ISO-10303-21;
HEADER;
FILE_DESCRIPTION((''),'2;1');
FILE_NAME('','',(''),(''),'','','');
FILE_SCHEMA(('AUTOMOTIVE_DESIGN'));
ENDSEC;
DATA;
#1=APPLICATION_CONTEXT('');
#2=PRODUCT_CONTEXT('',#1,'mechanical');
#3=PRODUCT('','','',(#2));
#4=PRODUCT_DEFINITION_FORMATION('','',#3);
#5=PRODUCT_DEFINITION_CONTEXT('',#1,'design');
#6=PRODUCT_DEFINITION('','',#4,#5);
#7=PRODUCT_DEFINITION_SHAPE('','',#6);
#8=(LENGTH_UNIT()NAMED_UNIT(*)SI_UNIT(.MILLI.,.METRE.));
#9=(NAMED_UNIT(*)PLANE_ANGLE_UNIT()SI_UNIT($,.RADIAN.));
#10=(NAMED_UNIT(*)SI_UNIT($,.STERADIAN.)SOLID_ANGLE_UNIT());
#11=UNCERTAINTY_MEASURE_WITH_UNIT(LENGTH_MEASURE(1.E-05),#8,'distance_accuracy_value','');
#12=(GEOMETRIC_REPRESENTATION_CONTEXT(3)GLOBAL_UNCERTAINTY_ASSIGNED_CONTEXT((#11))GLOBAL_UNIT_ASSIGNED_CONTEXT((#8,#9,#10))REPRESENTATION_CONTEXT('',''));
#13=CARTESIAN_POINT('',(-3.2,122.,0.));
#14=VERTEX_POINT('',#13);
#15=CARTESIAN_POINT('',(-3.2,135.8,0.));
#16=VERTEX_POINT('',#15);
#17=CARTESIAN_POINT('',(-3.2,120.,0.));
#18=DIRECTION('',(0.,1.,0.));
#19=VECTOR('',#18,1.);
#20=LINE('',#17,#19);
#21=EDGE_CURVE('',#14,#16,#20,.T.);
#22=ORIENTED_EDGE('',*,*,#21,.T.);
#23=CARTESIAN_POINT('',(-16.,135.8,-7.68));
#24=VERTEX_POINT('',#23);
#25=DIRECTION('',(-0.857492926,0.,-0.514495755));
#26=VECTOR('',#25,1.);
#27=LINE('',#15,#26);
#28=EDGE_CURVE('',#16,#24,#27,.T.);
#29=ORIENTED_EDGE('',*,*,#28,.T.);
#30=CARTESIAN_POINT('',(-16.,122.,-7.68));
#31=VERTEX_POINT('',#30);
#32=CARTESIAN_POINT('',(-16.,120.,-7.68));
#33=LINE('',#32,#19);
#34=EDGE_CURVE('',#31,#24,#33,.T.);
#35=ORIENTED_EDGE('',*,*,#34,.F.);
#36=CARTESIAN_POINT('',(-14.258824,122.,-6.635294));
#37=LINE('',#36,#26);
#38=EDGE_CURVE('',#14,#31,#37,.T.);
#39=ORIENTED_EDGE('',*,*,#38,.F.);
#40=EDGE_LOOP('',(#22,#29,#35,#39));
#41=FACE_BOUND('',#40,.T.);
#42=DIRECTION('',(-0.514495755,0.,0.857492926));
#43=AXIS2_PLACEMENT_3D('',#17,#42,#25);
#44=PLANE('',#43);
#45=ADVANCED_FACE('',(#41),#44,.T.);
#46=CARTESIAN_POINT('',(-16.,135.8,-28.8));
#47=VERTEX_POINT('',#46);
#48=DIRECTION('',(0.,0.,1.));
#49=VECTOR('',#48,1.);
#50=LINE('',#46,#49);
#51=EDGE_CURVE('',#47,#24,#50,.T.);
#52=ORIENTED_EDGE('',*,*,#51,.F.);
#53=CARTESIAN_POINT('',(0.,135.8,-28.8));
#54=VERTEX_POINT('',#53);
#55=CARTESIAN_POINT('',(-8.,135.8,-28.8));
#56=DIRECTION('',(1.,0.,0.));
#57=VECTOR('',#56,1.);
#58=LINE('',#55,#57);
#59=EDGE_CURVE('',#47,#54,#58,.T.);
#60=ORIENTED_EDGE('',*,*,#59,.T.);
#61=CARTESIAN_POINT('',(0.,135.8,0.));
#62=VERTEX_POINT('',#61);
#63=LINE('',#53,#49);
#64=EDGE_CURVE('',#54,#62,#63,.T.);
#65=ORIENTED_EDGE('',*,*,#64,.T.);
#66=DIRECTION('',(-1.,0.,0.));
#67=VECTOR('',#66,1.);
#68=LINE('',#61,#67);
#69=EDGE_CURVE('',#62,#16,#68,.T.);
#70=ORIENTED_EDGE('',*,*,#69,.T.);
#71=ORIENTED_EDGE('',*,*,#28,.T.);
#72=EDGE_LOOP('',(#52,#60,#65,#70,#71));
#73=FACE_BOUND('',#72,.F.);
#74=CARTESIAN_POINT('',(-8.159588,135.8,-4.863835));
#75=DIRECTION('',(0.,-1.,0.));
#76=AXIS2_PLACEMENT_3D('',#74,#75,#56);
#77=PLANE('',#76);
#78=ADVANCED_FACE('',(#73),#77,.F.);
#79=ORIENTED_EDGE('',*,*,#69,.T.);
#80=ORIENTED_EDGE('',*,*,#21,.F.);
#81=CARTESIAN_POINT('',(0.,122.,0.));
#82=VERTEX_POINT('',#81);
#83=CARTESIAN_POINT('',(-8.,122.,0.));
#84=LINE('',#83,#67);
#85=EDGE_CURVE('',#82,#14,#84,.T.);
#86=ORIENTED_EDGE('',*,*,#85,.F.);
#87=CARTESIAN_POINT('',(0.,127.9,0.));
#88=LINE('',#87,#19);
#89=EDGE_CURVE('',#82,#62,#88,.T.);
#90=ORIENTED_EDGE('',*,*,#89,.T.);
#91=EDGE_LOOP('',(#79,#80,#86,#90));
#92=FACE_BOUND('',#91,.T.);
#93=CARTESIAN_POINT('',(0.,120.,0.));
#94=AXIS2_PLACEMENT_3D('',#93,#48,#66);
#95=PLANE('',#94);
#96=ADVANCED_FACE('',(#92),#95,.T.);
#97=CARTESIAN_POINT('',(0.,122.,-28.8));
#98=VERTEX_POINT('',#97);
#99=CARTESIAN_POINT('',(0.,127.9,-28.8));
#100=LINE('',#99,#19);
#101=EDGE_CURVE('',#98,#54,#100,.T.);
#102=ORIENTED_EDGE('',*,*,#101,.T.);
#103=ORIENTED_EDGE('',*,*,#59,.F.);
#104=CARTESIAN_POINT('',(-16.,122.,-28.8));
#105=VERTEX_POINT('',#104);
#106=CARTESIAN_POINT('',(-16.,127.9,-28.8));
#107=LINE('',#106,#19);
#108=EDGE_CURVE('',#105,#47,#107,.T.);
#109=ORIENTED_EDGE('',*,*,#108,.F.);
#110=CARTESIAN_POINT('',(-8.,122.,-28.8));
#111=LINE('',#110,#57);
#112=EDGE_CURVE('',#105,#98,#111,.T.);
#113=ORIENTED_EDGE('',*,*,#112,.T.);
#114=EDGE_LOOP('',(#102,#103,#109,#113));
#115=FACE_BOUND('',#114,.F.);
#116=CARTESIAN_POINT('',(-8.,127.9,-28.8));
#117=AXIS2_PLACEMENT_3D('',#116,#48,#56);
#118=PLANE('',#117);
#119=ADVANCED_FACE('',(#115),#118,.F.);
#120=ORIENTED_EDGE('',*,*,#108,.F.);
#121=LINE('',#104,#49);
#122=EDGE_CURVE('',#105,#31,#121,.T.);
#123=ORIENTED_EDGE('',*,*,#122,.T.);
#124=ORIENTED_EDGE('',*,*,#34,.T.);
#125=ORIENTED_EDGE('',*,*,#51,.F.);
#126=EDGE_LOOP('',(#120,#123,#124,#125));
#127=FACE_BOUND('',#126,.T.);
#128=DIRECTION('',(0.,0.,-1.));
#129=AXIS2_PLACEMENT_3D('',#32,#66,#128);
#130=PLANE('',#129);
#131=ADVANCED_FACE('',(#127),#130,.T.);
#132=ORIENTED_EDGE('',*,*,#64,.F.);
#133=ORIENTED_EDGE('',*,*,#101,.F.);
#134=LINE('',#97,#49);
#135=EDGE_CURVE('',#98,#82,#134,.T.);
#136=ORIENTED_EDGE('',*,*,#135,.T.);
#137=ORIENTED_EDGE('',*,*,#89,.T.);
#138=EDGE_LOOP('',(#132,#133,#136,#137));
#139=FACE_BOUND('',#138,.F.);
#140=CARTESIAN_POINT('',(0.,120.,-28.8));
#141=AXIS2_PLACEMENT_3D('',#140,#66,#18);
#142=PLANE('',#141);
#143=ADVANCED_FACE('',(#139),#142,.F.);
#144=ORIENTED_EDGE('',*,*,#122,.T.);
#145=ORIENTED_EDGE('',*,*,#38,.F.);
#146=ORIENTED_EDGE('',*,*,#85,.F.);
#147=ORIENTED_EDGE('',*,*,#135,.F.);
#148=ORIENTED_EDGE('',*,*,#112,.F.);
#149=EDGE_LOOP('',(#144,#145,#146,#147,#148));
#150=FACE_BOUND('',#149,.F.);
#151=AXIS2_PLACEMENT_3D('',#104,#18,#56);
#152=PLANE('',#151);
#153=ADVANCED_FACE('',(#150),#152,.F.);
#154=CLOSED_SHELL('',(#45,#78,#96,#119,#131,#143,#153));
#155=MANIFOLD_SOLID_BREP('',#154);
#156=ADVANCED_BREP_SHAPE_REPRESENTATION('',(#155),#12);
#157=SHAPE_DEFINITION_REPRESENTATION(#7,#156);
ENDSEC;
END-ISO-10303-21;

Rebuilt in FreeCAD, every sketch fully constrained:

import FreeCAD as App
import Part
import Sketcher
from FreeCAD import Vector
Q = App.Units.Quantity


def add_polygon(sketch, points):
    """Adds a closed chain of lines whose ends are joined by coincident constraints."""
    first, n = sketch.GeometryCount, len(points)
    for a, b in zip(points, points[1:] + points[:1]):
        sketch.addGeometry(Part.LineSegment(App.Vector(*a, 0), App.Vector(*b, 0)), False)
    for i in range(n):
        sketch.addConstraint(Sketcher.Constraint("Coincident", first + i, 2, first + (i + 1) % n, 1))

doc = App.newDocument("Part")
body = doc.addObject("PartDesign::Body", "Body")

# Sketch on XY plane
sketch1 = body.newObject("Sketcher::SketchObject", "Sketch")
sketch1.AttachmentSupport = (doc.getObject("XY_Plane"), [""])
sketch1.MapMode = "FlatFace"
sketch1.AttachmentOffset = App.Placement(Vector(0, 0, -28.8), App.Rotation())
add_polygon(sketch1, [(-16, 136), (-16, 120), (0, 120), (0, 136)])  # lines 0-3
sketch1.addConstraint([
    Sketcher.Constraint("Vertical", 0),
    Sketcher.Constraint("Horizontal", 1),
    Sketcher.Constraint("Vertical", 2),
    Sketcher.Constraint("Horizontal", 3),
    Sketcher.Constraint("PointOnObject", 1, 2, -2),
    Sketcher.Constraint("DistanceX", 1, 1, 1, 2, Q("16 mm")),
    Sketcher.Constraint("DistanceY", 0, 2, 0, 1, Q("15.8 mm")),
    Sketcher.Constraint("DistanceY", -1, 1, 0, 2, Q("120 mm")),
])
pad1 = body.newObject("PartDesign::Pad", "Pad")
pad1.Profile = sketch1
pad1.Length = 28.8

# Sketch on XZ plane
sketch2 = body.newObject("Sketcher::SketchObject", "Sketch001")
sketch2.AttachmentSupport = (doc.getObject("XZ_Plane"), [""])
sketch2.MapMode = "FlatFace"
sketch2.AttachmentOffset = App.Placement(Vector(0, 0, -120), App.Rotation())
add_polygon(sketch2, [(-16, -10), (0, 0), (-16, 0)])  # lines 0-2
sketch2.addConstraint([
    Sketcher.Constraint("Horizontal", 1),
    Sketcher.Constraint("Vertical", 2),
    Sketcher.Constraint("Coincident", 0, 2, -1, 1),
    Sketcher.Constraint("DistanceX", 1, 2, 1, 1, Q("16 mm")),
    Sketcher.Constraint("DistanceY", 2, 2, 2, 1, Q("9.6 mm")),
])
pocket1 = body.newObject("PartDesign::Pocket", "Pocket")
pocket1.Profile = sketch2
pocket1.Length = 16

# Sketch on XZ plane
sketch3 = body.newObject("Sketcher::SketchObject", "Sketch002")
sketch3.AttachmentSupport = (doc.getObject("XZ_Plane"), [""])
sketch3.MapMode = "FlatFace"
sketch3.AttachmentOffset = App.Placement(Vector(0, 0, -120), App.Rotation())
add_polygon(sketch3, [(0, 0), (-3.2, 0), (-16, -7.7), (-16, -10.9), (-3.2, -3.2), (0, -3.2)])  # lines 0-5
sketch3.addConstraint([
    Sketcher.Constraint("Horizontal", 0),
    Sketcher.Constraint("Vertical", 2),
    Sketcher.Constraint("Horizontal", 4),
    Sketcher.Constraint("Vertical", 5),
    Sketcher.Constraint("Coincident", 5, 2, -1, 1),
    Sketcher.Constraint("Parallel", 1, 3),
    Sketcher.Constraint("Vertical", 0, 2, 3, 2),
    Sketcher.Constraint("Equal", 4, 2),
    Sketcher.Constraint("DistanceX", 0, 2, 0, 1, Q("3.2 mm")),
    Sketcher.Constraint("DistanceX", 1, 2, -1, 1, Q("16 mm")),
    Sketcher.Constraint("DistanceY", 1, 2, -1, 1, Q("7.68 mm")),
])
pad2 = body.newObject("PartDesign::Pad", "Pad001")
pad2.Profile = sketch3
pad2.Length = 15.8
pad2.Reversed = True

# Sketch on XY plane
sketch4 = body.newObject("Sketcher::SketchObject", "Sketch003")
sketch4.AttachmentSupport = (doc.getObject("XY_Plane"), [""])
sketch4.MapMode = "FlatFace"
sketch4.AttachmentOffset = App.Placement(Vector(0, 0, -28.8), App.Rotation())
add_polygon(sketch4, [(-16, 120), (-16, 122), (0, 122), (0, 120)])  # lines 0-3
sketch4.addConstraint([
    Sketcher.Constraint("Vertical", 0),
    Sketcher.Constraint("Horizontal", 1),
    Sketcher.Constraint("Vertical", 2),
    Sketcher.Constraint("Horizontal", 3),
    Sketcher.Constraint("PointOnObject", 1, 2, -2),
    Sketcher.Constraint("DistanceX", 1, 1, 1, 2, Q("16 mm")),
    Sketcher.Constraint("DistanceY", 0, 1, 0, 2, Q("2 mm")),
    Sketcher.Constraint("DistanceY", -1, 1, 0, 2, Q("122 mm")),
])
pocket2 = body.newObject("PartDesign::Pocket", "Pocket001")
pocket2.Profile = sketch4
pocket2.Length = 30
pocket2.Reversed = True

doc.recompute()
